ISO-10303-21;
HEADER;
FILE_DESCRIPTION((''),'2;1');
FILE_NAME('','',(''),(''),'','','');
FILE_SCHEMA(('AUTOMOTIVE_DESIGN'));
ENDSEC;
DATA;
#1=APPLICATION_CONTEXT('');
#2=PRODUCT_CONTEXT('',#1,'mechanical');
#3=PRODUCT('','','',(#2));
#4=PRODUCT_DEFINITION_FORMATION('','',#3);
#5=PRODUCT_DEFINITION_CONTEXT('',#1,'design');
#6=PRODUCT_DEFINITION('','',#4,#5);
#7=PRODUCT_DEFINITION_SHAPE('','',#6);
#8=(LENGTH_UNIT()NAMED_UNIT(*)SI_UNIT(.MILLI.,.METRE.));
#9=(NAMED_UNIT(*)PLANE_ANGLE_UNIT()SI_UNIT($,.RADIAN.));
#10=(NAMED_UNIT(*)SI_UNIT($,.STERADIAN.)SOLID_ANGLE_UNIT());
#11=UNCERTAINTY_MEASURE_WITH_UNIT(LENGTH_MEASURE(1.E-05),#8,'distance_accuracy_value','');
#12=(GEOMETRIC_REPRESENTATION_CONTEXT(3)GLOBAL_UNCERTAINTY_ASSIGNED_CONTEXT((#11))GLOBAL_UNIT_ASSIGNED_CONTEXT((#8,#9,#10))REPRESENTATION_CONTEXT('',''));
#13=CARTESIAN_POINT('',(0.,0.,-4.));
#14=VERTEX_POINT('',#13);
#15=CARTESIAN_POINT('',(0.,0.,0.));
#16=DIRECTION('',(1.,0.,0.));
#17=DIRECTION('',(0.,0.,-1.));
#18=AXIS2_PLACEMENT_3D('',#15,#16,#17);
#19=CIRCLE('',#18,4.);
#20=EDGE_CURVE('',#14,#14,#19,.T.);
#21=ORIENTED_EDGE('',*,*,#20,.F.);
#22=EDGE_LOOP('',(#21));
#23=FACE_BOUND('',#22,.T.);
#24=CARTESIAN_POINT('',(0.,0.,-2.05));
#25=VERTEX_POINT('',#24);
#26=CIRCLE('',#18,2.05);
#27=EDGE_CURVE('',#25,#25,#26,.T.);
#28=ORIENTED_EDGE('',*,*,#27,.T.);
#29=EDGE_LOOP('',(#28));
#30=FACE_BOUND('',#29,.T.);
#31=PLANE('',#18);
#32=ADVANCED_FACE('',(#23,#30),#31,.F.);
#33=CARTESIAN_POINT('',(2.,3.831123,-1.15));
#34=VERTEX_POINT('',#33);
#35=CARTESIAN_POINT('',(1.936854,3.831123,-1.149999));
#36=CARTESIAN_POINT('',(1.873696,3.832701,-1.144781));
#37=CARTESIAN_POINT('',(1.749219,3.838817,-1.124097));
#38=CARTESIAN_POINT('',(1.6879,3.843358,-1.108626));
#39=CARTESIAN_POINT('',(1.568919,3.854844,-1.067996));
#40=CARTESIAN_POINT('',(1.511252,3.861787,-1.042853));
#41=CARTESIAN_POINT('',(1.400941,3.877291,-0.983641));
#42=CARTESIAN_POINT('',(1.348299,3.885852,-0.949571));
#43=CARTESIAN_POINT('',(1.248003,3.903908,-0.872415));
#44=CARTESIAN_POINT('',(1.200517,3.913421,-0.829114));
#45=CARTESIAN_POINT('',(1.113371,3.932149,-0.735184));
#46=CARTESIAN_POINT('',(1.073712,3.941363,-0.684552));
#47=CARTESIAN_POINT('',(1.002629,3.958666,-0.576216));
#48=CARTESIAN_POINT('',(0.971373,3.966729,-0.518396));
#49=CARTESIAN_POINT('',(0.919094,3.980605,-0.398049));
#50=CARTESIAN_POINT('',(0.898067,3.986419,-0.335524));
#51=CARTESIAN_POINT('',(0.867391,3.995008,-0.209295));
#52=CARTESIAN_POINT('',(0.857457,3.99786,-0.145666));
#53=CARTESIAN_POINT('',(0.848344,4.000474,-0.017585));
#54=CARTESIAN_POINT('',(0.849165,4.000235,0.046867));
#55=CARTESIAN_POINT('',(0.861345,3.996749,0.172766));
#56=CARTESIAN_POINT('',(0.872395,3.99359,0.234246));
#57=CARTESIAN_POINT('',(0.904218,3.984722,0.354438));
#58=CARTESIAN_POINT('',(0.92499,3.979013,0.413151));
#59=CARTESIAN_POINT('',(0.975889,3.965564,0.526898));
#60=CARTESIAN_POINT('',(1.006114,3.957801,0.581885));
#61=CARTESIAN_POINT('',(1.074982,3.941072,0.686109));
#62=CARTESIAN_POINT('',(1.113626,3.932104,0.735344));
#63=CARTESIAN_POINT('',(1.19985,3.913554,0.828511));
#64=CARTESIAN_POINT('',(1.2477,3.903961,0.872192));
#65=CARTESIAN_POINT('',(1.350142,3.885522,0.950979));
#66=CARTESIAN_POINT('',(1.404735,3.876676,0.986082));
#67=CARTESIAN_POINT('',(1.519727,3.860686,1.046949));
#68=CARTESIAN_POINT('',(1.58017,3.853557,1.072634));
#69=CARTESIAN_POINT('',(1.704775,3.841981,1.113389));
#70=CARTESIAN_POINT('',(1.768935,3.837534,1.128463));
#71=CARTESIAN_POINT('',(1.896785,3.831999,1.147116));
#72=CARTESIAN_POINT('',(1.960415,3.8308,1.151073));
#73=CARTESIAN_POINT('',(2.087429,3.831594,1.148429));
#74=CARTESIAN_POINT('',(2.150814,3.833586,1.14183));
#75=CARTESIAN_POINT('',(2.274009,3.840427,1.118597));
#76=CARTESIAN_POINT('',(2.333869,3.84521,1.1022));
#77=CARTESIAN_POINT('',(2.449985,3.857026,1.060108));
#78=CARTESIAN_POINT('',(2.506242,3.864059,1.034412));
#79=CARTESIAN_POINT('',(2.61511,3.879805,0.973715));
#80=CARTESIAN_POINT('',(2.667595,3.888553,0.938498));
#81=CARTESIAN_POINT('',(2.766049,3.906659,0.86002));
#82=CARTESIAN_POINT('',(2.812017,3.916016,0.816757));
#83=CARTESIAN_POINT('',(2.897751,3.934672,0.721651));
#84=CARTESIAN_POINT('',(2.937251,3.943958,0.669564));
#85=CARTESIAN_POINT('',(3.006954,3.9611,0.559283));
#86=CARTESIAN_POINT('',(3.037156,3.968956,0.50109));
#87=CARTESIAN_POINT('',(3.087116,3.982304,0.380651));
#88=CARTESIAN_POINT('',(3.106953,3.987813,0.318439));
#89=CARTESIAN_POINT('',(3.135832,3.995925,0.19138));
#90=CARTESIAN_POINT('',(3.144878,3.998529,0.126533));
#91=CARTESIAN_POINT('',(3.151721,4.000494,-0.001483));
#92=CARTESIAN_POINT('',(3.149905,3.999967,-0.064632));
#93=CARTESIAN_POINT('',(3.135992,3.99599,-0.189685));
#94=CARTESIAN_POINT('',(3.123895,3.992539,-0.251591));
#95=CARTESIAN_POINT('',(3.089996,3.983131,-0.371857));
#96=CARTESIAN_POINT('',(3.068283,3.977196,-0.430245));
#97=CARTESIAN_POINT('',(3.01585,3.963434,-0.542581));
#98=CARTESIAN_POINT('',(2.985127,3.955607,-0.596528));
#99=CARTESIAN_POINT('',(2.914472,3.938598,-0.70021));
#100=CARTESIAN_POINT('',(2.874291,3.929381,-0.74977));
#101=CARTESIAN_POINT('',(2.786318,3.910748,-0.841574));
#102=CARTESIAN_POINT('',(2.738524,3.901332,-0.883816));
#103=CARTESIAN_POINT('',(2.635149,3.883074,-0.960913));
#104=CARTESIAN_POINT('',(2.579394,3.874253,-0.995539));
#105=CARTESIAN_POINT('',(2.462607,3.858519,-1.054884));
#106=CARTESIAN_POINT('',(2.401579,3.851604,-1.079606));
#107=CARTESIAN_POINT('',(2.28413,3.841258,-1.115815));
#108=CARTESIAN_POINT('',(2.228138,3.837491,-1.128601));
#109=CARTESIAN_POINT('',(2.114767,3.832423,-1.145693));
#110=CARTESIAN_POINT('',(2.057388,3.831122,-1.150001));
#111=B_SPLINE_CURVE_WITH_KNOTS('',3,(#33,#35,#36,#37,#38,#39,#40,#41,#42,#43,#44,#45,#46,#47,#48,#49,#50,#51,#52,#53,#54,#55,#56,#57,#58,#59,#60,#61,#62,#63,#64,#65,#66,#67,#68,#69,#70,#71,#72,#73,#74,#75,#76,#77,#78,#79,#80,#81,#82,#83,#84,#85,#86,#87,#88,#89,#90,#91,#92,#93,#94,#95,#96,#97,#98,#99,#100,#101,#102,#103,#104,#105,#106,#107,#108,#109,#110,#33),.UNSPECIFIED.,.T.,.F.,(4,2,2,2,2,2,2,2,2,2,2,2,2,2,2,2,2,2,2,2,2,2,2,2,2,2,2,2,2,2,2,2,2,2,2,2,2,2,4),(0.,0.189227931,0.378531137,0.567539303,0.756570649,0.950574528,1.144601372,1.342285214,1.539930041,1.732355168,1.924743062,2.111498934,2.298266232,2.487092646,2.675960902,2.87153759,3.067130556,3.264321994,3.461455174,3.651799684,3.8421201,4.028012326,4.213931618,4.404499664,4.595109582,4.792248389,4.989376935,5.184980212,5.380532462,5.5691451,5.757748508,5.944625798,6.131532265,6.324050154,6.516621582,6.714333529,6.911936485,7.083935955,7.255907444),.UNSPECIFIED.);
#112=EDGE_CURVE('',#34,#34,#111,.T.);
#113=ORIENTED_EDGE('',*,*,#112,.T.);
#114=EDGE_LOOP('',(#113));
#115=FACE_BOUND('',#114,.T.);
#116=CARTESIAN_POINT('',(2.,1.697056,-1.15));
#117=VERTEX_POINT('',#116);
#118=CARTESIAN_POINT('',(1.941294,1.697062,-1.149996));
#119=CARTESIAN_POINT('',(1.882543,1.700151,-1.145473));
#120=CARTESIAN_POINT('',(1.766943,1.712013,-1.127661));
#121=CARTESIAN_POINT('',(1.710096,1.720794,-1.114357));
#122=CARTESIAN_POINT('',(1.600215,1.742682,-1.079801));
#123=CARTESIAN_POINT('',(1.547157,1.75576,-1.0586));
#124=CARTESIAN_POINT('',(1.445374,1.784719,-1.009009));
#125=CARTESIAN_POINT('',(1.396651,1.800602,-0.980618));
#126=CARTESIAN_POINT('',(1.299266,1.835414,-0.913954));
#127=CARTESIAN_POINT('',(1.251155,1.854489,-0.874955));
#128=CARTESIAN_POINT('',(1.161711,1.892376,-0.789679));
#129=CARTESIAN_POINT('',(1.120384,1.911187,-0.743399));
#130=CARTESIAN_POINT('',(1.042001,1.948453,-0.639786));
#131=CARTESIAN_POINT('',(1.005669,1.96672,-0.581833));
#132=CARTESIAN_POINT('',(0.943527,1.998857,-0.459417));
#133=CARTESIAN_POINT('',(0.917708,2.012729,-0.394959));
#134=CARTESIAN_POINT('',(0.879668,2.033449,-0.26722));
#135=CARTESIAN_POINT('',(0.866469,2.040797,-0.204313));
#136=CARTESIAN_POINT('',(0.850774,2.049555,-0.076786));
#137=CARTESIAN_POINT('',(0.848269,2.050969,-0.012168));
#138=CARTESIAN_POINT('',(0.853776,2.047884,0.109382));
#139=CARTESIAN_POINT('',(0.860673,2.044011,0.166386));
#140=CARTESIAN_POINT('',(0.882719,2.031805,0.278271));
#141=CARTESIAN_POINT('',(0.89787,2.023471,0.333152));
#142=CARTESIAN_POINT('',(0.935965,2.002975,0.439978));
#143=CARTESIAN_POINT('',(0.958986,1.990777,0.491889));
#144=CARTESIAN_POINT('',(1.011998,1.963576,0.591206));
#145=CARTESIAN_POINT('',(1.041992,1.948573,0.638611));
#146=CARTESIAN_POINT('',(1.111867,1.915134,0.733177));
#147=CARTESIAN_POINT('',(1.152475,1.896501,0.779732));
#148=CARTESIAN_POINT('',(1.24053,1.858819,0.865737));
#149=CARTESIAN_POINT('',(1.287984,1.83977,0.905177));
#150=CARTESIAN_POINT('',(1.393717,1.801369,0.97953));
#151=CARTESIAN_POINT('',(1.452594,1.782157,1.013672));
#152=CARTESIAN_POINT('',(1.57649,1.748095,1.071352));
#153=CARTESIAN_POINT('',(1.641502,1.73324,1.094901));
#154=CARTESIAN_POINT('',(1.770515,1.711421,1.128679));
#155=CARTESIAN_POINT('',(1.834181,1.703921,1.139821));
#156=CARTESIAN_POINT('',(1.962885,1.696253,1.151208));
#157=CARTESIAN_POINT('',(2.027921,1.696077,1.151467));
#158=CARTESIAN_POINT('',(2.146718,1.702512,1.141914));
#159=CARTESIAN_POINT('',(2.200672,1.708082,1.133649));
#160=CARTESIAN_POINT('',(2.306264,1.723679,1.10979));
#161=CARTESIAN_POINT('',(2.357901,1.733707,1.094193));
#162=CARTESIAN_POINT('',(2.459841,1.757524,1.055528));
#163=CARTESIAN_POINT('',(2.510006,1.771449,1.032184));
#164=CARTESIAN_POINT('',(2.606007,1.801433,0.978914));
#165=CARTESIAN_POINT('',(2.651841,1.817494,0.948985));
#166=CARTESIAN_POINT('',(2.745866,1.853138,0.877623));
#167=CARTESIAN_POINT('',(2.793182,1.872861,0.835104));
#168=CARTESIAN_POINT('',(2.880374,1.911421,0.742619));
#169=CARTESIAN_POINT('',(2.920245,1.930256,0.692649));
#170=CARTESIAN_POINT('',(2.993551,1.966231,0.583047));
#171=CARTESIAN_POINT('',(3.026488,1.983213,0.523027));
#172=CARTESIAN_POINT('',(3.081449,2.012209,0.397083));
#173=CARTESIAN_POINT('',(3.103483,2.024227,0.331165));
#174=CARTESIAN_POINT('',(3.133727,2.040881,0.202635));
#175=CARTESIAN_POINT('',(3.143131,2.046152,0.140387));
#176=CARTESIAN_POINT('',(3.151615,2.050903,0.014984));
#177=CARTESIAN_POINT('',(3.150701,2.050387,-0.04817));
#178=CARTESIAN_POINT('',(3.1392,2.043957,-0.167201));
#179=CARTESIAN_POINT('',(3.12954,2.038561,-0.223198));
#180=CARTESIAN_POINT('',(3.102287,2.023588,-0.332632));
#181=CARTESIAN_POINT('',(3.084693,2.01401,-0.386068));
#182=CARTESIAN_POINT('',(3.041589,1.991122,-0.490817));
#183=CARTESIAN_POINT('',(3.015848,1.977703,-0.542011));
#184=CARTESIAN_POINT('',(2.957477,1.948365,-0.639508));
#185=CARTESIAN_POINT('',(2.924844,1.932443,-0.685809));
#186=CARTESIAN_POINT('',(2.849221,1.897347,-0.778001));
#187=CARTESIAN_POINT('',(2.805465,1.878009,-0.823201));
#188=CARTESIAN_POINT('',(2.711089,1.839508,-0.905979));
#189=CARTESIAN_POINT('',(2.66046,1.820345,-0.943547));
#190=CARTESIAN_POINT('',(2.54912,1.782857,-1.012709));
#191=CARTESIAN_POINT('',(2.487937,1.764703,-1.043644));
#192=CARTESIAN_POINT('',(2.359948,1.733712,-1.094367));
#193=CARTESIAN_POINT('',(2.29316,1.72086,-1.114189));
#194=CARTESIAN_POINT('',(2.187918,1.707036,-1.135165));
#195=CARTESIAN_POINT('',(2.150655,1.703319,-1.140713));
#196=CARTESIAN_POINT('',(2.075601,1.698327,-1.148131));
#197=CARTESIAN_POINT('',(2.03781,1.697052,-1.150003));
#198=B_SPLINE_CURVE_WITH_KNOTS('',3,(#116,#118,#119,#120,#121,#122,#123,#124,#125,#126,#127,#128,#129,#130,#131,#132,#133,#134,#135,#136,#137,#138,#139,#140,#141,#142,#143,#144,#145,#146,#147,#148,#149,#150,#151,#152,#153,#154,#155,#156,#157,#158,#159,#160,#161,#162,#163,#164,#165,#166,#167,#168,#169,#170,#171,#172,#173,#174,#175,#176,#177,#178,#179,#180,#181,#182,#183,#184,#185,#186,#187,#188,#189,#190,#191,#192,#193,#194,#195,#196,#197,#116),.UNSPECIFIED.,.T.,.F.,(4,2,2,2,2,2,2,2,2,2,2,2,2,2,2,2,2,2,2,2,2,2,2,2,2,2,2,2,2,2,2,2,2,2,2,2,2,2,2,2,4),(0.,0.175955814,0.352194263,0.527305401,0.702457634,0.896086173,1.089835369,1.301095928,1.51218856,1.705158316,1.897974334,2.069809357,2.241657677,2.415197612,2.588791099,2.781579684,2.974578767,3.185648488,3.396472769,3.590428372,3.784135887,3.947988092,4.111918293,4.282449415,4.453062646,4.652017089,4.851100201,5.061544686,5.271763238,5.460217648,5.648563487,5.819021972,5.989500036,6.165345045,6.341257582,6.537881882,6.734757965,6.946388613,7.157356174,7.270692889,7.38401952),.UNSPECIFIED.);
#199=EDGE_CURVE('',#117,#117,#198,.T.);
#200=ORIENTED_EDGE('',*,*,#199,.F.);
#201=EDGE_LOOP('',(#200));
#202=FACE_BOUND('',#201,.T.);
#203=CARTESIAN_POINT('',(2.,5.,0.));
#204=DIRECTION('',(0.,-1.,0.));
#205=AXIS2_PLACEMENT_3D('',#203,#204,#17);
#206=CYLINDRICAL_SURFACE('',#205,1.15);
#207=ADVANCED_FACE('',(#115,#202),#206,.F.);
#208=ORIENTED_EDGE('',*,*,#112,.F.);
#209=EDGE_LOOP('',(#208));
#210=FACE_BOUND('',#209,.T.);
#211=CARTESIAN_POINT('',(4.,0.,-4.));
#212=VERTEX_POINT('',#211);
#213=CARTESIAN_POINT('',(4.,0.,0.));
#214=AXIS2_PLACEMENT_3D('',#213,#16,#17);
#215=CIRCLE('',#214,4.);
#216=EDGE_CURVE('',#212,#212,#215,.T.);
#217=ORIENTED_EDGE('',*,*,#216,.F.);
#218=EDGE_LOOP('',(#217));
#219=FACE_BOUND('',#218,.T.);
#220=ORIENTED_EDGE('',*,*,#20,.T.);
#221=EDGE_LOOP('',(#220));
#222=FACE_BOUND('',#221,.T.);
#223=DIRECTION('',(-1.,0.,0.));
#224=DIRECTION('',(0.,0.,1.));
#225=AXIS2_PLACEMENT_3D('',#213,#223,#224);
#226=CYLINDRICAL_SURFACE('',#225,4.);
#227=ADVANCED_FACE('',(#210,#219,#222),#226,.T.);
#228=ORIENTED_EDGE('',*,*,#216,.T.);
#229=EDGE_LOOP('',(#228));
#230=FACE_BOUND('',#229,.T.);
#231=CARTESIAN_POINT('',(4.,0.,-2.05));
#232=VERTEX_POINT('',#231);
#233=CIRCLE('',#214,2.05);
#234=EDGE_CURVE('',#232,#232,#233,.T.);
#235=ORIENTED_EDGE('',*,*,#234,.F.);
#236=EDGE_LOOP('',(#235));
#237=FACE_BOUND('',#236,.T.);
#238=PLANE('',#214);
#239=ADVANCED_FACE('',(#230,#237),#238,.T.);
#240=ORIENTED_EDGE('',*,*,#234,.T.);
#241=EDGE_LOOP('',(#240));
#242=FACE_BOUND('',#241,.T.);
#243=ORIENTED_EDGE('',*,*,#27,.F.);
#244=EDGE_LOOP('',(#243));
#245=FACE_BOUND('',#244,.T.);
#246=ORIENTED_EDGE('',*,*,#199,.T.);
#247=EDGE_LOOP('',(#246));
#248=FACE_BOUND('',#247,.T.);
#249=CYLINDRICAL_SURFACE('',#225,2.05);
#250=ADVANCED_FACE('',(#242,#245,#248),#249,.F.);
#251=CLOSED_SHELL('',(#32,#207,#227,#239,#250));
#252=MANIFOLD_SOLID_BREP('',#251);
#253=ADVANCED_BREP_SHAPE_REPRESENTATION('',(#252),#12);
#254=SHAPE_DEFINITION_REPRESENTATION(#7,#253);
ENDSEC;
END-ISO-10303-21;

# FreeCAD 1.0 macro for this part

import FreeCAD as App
import Part
import Sketcher

doc = App.newDocument("Part")
body = doc.addObject("PartDesign::Body", "Body")

# Sketch on YZ plane
sketch1 = body.newObject("Sketcher::SketchObject", "Sketch")
sketch1.AttachmentSupport = (doc.getObject("YZ_Plane"), [""])
sketch1.MapMode = "FlatFace"
sketch1.addGeometry([
    Part.Circle(App.Vector(0, 0, 0), App.Vector(0, 0, 1), 4),
    Part.Circle(App.Vector(0, 0, 0), App.Vector(0, 0, 1), 2),
], False)
sketch1.addConstraint([
    Sketcher.Constraint("Coincident", 0, 3, -1, 1),
    Sketcher.Constraint("Coincident", 1, 3, -1, 1),
    Sketcher.Constraint("Diameter", 0, 8.0),
    Sketcher.Constraint("Diameter", 1, 4.1),
])
pad1 = body.newObject("PartDesign::Pad", "Pad")
pad1.Profile = sketch1
pad1.Length = 4

# Sketch on XZ plane
sketch2 = body.newObject("Sketcher::SketchObject", "Sketch001")
sketch2.AttachmentSupport = (doc.getObject("XZ_Plane"), [""])
sketch2.MapMode = "FlatFace"
sketch2.addGeometry(Part.Circle(App.Vector(2, 0, 0), App.Vector(0, 0, 1), 1.1), False)
sketch2.addConstraint([
    Sketcher.Constraint("PointOnObject", 0, 3, -1),
    Sketcher.Constraint("Diameter", 0, 2.3),
    Sketcher.Constraint("DistanceX", -1, 1, 0, 3, 2.0),
])
pocket1 = body.newObject("PartDesign::Pocket", "Pocket")
pocket1.Profile = sketch2
pocket1.Length = 5

doc.recompute()
